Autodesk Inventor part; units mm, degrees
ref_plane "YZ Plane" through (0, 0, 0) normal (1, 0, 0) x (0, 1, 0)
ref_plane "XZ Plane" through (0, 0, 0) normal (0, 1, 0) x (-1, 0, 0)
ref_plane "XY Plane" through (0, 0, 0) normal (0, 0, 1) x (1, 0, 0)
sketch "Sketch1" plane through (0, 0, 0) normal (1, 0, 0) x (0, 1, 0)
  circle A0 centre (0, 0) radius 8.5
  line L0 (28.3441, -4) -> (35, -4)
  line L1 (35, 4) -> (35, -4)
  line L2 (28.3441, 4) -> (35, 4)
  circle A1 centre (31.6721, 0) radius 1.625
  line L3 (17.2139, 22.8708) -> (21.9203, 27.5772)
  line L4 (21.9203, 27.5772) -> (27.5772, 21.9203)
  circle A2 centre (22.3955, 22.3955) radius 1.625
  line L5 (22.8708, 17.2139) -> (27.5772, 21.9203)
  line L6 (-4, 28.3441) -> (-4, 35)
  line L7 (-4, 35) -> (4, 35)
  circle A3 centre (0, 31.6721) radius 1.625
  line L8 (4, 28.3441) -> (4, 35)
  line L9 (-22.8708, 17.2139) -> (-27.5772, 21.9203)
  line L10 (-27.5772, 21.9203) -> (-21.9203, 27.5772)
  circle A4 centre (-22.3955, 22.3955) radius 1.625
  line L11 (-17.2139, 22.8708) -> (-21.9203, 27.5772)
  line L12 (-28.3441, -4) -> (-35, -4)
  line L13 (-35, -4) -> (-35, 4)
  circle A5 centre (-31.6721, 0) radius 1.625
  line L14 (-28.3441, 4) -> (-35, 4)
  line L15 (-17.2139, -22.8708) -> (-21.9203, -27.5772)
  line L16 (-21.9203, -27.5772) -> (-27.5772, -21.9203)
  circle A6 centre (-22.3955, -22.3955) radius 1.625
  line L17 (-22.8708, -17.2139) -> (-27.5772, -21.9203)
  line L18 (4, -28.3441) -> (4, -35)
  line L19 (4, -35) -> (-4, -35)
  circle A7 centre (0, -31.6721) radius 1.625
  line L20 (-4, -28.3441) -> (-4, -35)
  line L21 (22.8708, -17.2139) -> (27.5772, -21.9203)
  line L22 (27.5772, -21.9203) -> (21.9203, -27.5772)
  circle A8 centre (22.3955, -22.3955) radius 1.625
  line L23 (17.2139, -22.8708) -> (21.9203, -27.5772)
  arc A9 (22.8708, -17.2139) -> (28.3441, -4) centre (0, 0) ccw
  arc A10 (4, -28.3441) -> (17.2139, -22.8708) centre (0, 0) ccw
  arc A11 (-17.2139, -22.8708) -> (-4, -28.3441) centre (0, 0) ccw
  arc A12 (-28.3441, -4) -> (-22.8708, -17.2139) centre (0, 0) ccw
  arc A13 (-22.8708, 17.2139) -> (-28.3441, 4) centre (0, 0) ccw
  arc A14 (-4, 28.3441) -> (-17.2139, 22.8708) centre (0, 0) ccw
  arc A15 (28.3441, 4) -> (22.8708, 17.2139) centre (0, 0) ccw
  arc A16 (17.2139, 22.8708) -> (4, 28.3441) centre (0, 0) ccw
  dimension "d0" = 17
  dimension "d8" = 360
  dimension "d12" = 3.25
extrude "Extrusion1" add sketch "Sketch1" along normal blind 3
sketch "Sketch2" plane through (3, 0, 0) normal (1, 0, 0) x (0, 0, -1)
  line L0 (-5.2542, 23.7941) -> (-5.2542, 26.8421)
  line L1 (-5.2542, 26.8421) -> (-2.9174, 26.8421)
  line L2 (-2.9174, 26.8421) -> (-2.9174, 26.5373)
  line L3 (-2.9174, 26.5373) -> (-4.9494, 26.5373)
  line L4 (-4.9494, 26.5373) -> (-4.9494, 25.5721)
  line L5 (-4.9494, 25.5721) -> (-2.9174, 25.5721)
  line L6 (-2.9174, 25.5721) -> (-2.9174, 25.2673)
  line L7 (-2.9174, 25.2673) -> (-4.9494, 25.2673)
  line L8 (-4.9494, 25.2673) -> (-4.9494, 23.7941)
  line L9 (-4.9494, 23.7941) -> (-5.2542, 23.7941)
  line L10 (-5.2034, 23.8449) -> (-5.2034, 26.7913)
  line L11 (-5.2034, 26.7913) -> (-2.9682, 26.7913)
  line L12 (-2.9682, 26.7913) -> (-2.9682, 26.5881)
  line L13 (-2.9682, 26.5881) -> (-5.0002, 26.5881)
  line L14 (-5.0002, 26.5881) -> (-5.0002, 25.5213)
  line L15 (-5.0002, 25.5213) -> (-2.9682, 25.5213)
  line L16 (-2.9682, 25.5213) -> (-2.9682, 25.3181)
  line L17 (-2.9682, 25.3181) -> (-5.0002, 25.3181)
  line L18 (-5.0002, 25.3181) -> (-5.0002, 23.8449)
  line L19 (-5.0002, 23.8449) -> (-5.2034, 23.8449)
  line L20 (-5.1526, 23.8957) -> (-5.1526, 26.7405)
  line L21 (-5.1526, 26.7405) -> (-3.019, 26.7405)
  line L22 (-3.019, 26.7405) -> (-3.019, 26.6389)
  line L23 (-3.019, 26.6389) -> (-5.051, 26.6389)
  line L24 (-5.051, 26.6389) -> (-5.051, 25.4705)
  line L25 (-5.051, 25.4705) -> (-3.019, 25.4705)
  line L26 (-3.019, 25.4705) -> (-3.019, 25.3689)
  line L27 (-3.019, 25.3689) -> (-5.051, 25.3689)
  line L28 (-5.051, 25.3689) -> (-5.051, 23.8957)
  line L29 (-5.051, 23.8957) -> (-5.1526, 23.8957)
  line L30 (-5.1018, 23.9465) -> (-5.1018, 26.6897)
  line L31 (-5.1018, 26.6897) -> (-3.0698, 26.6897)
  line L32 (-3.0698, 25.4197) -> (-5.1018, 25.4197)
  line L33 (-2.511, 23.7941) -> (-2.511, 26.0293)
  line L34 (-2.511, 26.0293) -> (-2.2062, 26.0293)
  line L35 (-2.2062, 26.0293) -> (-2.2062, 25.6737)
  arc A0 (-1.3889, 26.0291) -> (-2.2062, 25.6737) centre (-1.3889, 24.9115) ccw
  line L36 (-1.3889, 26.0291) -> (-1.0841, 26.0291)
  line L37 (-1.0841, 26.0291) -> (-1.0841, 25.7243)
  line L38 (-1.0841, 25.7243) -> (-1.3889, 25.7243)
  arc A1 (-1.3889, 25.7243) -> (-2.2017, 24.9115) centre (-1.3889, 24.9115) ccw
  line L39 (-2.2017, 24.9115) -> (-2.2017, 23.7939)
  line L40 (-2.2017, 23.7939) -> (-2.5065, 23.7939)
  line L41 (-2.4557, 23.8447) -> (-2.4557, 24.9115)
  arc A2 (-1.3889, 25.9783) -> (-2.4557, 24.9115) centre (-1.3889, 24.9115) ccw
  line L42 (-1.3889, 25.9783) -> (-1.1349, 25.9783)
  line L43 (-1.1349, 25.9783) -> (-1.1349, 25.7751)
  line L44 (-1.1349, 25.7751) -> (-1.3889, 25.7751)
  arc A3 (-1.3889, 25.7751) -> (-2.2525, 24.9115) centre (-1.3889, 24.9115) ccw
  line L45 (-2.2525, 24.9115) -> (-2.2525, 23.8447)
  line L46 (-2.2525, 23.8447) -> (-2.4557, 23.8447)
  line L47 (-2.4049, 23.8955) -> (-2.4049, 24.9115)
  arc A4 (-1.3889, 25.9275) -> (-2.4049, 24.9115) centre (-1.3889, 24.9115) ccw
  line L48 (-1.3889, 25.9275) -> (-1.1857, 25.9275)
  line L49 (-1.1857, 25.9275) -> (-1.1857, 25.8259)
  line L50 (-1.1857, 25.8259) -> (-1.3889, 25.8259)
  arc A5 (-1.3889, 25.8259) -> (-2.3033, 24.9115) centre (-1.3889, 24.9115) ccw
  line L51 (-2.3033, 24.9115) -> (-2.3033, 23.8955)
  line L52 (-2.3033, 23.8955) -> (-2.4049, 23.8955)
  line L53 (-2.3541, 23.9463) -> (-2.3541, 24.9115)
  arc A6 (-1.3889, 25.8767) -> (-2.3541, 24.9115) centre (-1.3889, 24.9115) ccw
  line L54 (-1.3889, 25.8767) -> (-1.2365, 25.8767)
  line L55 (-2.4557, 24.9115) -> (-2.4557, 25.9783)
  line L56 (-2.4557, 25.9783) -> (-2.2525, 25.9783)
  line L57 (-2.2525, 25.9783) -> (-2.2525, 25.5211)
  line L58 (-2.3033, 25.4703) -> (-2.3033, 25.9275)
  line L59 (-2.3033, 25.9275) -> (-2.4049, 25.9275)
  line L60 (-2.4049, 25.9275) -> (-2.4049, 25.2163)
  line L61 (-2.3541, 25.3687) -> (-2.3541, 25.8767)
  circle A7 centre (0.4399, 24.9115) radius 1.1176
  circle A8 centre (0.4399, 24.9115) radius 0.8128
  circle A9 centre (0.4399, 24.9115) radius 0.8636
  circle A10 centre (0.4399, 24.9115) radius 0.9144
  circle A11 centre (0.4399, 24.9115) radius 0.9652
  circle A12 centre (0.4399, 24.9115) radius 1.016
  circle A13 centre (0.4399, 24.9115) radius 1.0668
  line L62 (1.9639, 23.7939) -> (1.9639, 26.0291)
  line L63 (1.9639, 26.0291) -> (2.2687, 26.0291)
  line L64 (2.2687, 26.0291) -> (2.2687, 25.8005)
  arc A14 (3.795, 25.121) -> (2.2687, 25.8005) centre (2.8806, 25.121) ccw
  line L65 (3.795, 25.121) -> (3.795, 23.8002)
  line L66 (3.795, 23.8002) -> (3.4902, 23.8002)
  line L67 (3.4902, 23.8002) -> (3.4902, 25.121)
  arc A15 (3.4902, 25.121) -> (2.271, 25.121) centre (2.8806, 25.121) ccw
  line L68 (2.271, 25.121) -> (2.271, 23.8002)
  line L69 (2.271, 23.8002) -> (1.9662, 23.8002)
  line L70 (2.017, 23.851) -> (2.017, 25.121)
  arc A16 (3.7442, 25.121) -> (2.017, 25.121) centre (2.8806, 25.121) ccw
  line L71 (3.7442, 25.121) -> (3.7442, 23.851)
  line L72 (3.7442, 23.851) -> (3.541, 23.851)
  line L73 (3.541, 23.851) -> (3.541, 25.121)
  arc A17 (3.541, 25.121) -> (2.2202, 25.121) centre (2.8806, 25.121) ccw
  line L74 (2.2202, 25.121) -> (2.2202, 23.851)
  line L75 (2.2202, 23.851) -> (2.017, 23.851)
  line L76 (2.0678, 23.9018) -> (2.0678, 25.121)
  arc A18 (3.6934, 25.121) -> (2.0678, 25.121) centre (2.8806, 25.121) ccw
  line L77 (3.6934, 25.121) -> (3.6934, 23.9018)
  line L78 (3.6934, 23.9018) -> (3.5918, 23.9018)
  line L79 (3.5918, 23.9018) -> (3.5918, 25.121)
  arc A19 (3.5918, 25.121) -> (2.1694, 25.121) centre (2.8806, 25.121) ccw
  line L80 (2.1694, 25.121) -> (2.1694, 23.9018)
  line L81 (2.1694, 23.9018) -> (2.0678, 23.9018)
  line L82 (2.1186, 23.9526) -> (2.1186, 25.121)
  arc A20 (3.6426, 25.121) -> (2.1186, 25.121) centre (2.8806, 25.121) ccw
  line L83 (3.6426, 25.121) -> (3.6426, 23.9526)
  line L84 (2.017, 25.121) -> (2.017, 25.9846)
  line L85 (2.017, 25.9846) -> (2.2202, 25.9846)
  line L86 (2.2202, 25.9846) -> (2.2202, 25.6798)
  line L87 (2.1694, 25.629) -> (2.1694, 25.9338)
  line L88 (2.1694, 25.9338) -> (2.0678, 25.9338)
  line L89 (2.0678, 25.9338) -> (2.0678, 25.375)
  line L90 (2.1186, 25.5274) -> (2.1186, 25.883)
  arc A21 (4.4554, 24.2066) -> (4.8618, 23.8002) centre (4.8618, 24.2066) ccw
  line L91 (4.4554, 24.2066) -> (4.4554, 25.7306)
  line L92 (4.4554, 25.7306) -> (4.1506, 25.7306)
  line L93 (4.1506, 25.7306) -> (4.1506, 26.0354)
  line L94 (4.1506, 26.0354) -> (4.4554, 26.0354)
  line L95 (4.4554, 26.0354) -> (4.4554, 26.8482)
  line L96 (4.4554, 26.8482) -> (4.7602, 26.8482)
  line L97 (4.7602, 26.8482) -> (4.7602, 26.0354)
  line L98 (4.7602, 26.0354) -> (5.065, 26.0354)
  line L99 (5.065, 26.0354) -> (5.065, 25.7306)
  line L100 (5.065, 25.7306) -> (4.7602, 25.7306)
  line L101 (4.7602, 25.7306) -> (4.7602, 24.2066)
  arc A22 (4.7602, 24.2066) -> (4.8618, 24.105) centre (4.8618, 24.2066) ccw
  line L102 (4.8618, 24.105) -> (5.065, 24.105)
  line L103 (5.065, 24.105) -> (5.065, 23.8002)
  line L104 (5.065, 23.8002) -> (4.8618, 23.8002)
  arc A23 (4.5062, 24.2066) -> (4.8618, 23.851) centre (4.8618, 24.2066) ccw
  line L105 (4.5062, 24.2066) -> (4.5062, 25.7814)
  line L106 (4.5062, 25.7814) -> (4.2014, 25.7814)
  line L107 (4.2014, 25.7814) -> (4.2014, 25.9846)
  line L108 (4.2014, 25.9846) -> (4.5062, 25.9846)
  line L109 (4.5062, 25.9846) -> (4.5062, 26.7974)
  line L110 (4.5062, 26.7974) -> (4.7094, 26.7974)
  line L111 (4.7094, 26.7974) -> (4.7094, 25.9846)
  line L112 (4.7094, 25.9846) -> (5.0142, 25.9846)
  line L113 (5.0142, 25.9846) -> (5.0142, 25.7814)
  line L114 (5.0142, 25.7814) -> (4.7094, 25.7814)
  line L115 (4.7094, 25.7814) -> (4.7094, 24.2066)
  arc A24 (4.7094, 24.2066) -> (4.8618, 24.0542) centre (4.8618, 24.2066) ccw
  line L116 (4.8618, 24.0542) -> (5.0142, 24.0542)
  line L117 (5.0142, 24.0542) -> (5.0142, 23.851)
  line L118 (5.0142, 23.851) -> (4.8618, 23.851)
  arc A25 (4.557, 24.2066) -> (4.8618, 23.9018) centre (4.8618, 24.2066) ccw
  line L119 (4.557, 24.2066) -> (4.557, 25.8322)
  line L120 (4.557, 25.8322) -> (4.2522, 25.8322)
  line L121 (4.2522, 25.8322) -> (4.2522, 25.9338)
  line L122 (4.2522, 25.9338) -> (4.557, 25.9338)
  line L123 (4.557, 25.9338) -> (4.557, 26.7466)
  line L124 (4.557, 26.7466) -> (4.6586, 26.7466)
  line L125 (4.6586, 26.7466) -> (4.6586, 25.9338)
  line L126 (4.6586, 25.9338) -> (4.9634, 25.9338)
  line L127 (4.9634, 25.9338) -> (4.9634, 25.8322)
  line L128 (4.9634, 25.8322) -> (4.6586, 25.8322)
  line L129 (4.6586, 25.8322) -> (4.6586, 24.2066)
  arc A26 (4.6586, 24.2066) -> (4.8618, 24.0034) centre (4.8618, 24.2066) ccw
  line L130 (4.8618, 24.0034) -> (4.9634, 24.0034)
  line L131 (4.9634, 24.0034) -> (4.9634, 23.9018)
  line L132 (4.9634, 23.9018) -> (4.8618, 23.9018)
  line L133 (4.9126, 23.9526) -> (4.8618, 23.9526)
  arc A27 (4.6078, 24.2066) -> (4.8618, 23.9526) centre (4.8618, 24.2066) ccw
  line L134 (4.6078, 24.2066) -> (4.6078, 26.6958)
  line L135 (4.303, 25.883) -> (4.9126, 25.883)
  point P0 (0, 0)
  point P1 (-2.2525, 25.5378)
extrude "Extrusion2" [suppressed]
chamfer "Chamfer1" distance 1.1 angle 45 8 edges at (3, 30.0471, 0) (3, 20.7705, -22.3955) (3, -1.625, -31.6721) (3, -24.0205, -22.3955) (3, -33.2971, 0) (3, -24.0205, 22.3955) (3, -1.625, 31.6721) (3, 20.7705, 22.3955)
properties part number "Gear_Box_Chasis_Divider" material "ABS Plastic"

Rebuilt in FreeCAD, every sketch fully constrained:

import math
import FreeCAD as App
import Part
import Sketcher
Q = App.Units.Quantity


def edges_at(feature, points):
    """Names of the edges that pass closest to the given points."""
    edges = feature.Shape.Edges
    near = lambda p: min(range(len(edges)), key=lambda i: edges[i].distToShape(Part.Vertex(*p))[0])
    return sorted({f"Edge{near(p) + 1}" for p in points})

doc = App.newDocument("Part")
params = doc.addObject("Spreadsheet::Sheet", "Params")
for row, (alias, value) in enumerate([
    ("sketch1_diameter", "17 mm"),
    ("sketch1_diameter2", "3.25 mm"),
    ("sketch1_width", "8 mm"),
    ("sketch1_length", "8 mm"),
    ("pad1_length", "3 mm"),
    ("chamfer_size", "1.1 mm"),
], start=1):
    params.set(f"A{row}", alias)
    params.set(f"B{row}", "=" + value)
    params.setAlias(f"B{row}", alias)

body = doc.addObject("PartDesign::Body", "Body")

# Sketch on YZ plane
sketch1 = body.newObject("Sketcher::SketchObject", "Sketch")
sketch1.AttachmentSupport = (doc.getObject("YZ_Plane"), [""])
sketch1.MapMode = "FlatFace"
sketch1.addGeometry([
    Part.ArcOfCircle(Part.Circle(App.Vector(0.000926, -0.000529, 0), App.Vector(0, 0, 1), 28.623963), math.radians(-36.967524), math.radians(-8.031909)),  # 0
    Part.LineSegment(App.Vector(28.3441, -4, 0), App.Vector(35, -4, 0)),  # 1
    Part.LineSegment(App.Vector(35, -4, 0), App.Vector(35, 4, 0)),  # 2
    Part.LineSegment(App.Vector(35, 4, 0), App.Vector(28.3441, 4, 0)),  # 3
    Part.ArcOfCircle(Part.Circle(App.Vector(-0.001029, -0.000281, 0), App.Vector(0, 0, 1), 28.626012), math.radians(8.032967), math.radians(36.966466)),  # 4
    Part.LineSegment(App.Vector(22.8708, 17.2139, 0), App.Vector(27.5772, 21.9203, 0)),  # 5
    Part.LineSegment(App.Vector(27.5772, 21.9203, 0), App.Vector(21.9203, 27.5772, 0)),  # 6
    Part.LineSegment(App.Vector(21.9203, 27.5772, 0), App.Vector(17.2139, 22.8708, 0)),  # 7
    Part.ArcOfCircle(Part.Circle(App.Vector(0.000529, 0.000926, 0), App.Vector(0, 0, 1), 28.623963), math.radians(53.032476), math.radians(81.968091)),  # 8
    Part.LineSegment(App.Vector(4, 28.3441, 0), App.Vector(4, 35, 0)),  # 9
    Part.LineSegment(App.Vector(4, 35, 0), App.Vector(-4, 35, 0)),  # 10
    Part.LineSegment(App.Vector(-4, 35, 0), App.Vector(-4, 28.3441, 0)),  # 11
    Part.ArcOfCircle(Part.Circle(App.Vector(0.000281, -0.001029, 0), App.Vector(0, 0, 1), 28.626012), math.radians(98.032967), math.radians(126.966466)),  # 12
    Part.LineSegment(App.Vector(-17.2139, 22.8708, 0), App.Vector(-21.9203, 27.5772, 0)),  # 13
    Part.LineSegment(App.Vector(-21.9203, 27.5772, 0), App.Vector(-27.5772, 21.9203, 0)),  # 14
    Part.LineSegment(App.Vector(-27.5772, 21.9203, 0), App.Vector(-22.8708, 17.2139, 0)),  # 15
    Part.ArcOfCircle(Part.Circle(App.Vector(-0.000926, 0.000529, 0), App.Vector(0, 0, 1), 28.623963), math.radians(143.032476), math.radians(171.968091)),  # 16
    Part.LineSegment(App.Vector(-28.3441, 4, 0), App.Vector(-35, 4, 0)),  # 17
    Part.LineSegment(App.Vector(-35, 4, 0), App.Vector(-35, -4, 0)),  # 18
    Part.LineSegment(App.Vector(-35, -4, 0), App.Vector(-28.3441, -4, 0)),  # 19
    Part.ArcOfCircle(Part.Circle(App.Vector(0.001029, 0.000281, 0), App.Vector(0, 0, 1), 28.626012), math.radians(-171.967033), math.radians(-143.033534)),  # 20
    Part.LineSegment(App.Vector(-22.8708, -17.2139, 0), App.Vector(-27.5772, -21.9203, 0)),  # 21
    Part.LineSegment(App.Vector(-27.5772, -21.9203, 0), App.Vector(-21.9203, -27.5772, 0)),  # 22
    Part.LineSegment(App.Vector(-21.9203, -27.5772, 0), App.Vector(-17.2139, -22.8708, 0)),  # 23
    Part.ArcOfCircle(Part.Circle(App.Vector(-0.000529, -0.000926, 0), App.Vector(0, 0, 1), 28.623963), math.radians(-126.967524), math.radians(-98.031909)),  # 24
    Part.LineSegment(App.Vector(-4, -28.3441, 0), App.Vector(-4, -35, 0)),  # 25
    Part.LineSegment(App.Vector(-4, -35, 0), App.Vector(4, -35, 0)),  # 26
    Part.LineSegment(App.Vector(4, -35, 0), App.Vector(4, -28.3441, 0)),  # 27
    Part.ArcOfCircle(Part.Circle(App.Vector(-0.000281, 0.001029, 0), App.Vector(0, 0, 1), 28.626012), math.radians(-81.967033), math.radians(-53.033534)),  # 28
    Part.LineSegment(App.Vector(17.2139, -22.8708, 0), App.Vector(21.9203, -27.5772, 0)),  # 29
    Part.LineSegment(App.Vector(21.9203, -27.5772, 0), App.Vector(27.5772, -21.9203, 0)),  # 30
    Part.LineSegment(App.Vector(27.5772, -21.9203, 0), App.Vector(22.8708, -17.2139, 0)),  # 31
    Part.Circle(App.Vector(-22.3955, -22.3955, 0), App.Vector(0, 0, 1), 1.625),  # 32
    Part.Circle(App.Vector(0, -31.6721, 0), App.Vector(0, 0, 1), 1.625),  # 33
    Part.Circle(App.Vector(22.3955, -22.3955, 0), App.Vector(0, 0, 1), 1.625),  # 34
    Part.Circle(App.Vector(-31.6721, 0, 0), App.Vector(0, 0, 1), 1.625),  # 35
    Part.Circle(App.Vector(-22.3955, 22.3955, 0), App.Vector(0, 0, 1), 1.625),  # 36
    Part.Circle(App.Vector(0, 0, 0), App.Vector(0, 0, 1), 8.5),  # 37
    Part.Circle(App.Vector(31.6721, 0, 0), App.Vector(0, 0, 1), 1.625),  # 38
    Part.Circle(App.Vector(0, 31.6721, 0), App.Vector(0, 0, 1), 1.625),  # 39
    Part.Circle(App.Vector(22.3955, 22.3955, 0), App.Vector(0, 0, 1), 1.625),  # 40
], False)
sketch1.addConstraint([
    Sketcher.Constraint("Coincident", 0, 2, 1, 1),
    Sketcher.Constraint("Coincident", 1, 2, 2, 1),
    Sketcher.Constraint("Coincident", 2, 2, 3, 1),
    Sketcher.Constraint("Coincident", 3, 2, 4, 1),
    Sketcher.Constraint("Coincident", 4, 2, 5, 1),
    Sketcher.Constraint("Coincident", 5, 2, 6, 1),
    Sketcher.Constraint("Coincident", 6, 2, 7, 1),
    Sketcher.Constraint("Coincident", 7, 2, 8, 1),
    Sketcher.Constraint("Coincident", 8, 2, 9, 1),
    Sketcher.Constraint("Coincident", 9, 2, 10, 1),
    Sketcher.Constraint("Coincident", 10, 2, 11, 1),
    Sketcher.Constraint("Coincident", 11, 2, 12, 1),
    Sketcher.Constraint("Coincident", 12, 2, 13, 1),
    Sketcher.Constraint("Coincident", 13, 2, 14, 1),
    Sketcher.Constraint("Coincident", 14, 2, 15, 1),
    Sketcher.Constraint("Coincident", 15, 2, 16, 1),
    Sketcher.Constraint("Coincident", 16, 2, 17, 1),
    Sketcher.Constraint("Coincident", 17, 2, 18, 1),
    Sketcher.Constraint("Coincident", 18, 2, 19, 1),
    Sketcher.Constraint("Coincident", 19, 2, 20, 1),
    Sketcher.Constraint("Coincident", 20, 2, 21, 1),
    Sketcher.Constraint("Coincident", 21, 2, 22, 1),
    Sketcher.Constraint("Coincident", 22, 2, 23, 1),
    Sketcher.Constraint("Coincident", 23, 2, 24, 1),
    Sketcher.Constraint("Coincident", 24, 2, 25, 1),
    Sketcher.Constraint("Coincident", 25, 2, 26, 1),
    Sketcher.Constraint("Coincident", 26, 2, 27, 1),
    Sketcher.Constraint("Coincident", 27, 2, 28, 1),
    Sketcher.Constraint("Coincident", 28, 2, 29, 1),
    Sketcher.Constraint("Coincident", 29, 2, 30, 1),
    Sketcher.Constraint("Coincident", 30, 2, 31, 1),
    Sketcher.Constraint("Coincident", 31, 2, 0, 1),
    Sketcher.Constraint("Horizontal", 1),
    Sketcher.Constraint("Vertical", 2),
    Sketcher.Constraint("Horizontal", 3),
    Sketcher.Constraint("Vertical", 9),
    Sketcher.Constraint("Horizontal", 10),
    Sketcher.Constraint("Vertical", 11),
    Sketcher.Constraint("Horizontal", 17),
    Sketcher.Constraint("Vertical", 18),
    Sketcher.Constraint("Horizontal", 19),
    Sketcher.Constraint("Vertical", 25),
    Sketcher.Constraint("Horizontal", 26),
    Sketcher.Constraint("Vertical", 27),
    Sketcher.Constraint("Coincident", 37, 3, -1, 1),
    Sketcher.Constraint("Equal", 0, 8),
    Sketcher.Constraint("Equal", 4, 12),
    Sketcher.Constraint("Equal", 8, 16),
    Sketcher.Constraint("Equal", 12, 20),
    Sketcher.Constraint("Equal", 16, 24),
    Sketcher.Constraint("Equal", 20, 28),
    Sketcher.Constraint("Equal", 32, 33),
    Sketcher.Constraint("Equal", 33, 34),
    Sketcher.Constraint("Equal", 34, 35),
    Sketcher.Constraint("Equal", 35, 36),
    Sketcher.Constraint("Equal", 36, 38),
    Sketcher.Constraint("Equal", 38, 39),
    Sketcher.Constraint("Equal", 39, 40),
    Sketcher.Constraint("Symmetric", 0, 3, 16, 3, -1, 1),
    Sketcher.Constraint("Symmetric", 4, 3, 20, 3, -1, 1),
    Sketcher.Constraint("Symmetric", 8, 3, 24, 3, -1, 1),
    Sketcher.Constraint("Symmetric", 12, 3, 28, 3, -1, 1),
    Sketcher.Constraint("Symmetric", 34, 3, 36, 3, -1, 1),
    Sketcher.Constraint("Symmetric", 35, 3, 38, 3, -1, 1),
    Sketcher.Constraint("Symmetric", 33, 3, 39, 3, -1, 1),
    Sketcher.Constraint("Symmetric", 32, 3, 40, 3, -1, 1),
    Sketcher.Constraint("Symmetric", 1, 2, 17, 2, -1, 1),
    Sketcher.Constraint("Symmetric", 5, 2, 21, 2, -1, 1),
    Sketcher.Constraint("Symmetric", 6, 2, 22, 2, -1, 1),
    Sketcher.Constraint("Symmetric", 9, 2, 25, 2, -1, 1),
    Sketcher.Constraint("Symmetric", 13, 2, 29, 2, -1, 1),
    Sketcher.Constraint("Symmetric", 14, 2, 30, 2, -1, 1),
    Sketcher.Constraint("Symmetric", 0, 3, 4, 3, -2),
    Sketcher.Constraint("Symmetric", 12, 3, 24, 3, -2),
    Sketcher.Constraint("Symmetric", 32, 3, 34, 3, -2),
    Sketcher.Constraint("Symmetric", 8, 2, 11, 2, -2),
    Sketcher.Constraint("Symmetric", 7, 2, 12, 2, -2),
    Sketcher.Constraint("Symmetric", 6, 2, 13, 2, -2),
    Sketcher.Constraint("Symmetric", 5, 2, 14, 2, -2),
    Sketcher.Constraint("Symmetric", 4, 2, 15, 2, -2),
    Sketcher.Constraint("Symmetric", 3, 2, 16, 2, -2),
    Sketcher.Constraint("PointOnObject", 33, 3, -2),
    Sketcher.Constraint("PointOnObject", 35, 3, -1),
    Sketcher.Constraint("Perpendicular", 5, 6),
    Sketcher.Constraint("Perpendicular", 6, 7),
    Sketcher.Constraint("Perpendicular", 7, 13),
    Sketcher.Constraint("Perpendicular", 15, 21),
    Sketcher.Constraint("Perpendicular", 22, 23),
    Sketcher.Constraint("Perpendicular", 23, 29),
    Sketcher.Constraint("Perpendicular", 30, 31),
    Sketcher.Constraint("Horizontal", 1, 2, 18, 2),
    Sketcher.Constraint("Horizontal", 24, 2, 27, 2),
    Sketcher.Constraint("Equal", 26, 2),
    Sketcher.Constraint("Equal", 19, 9),
    Sketcher.Constraint("Equal", 5, 7),
    Sketcher.Constraint("Diameter", 37, Q("17 mm")),
    Sketcher.Constraint("Diameter", 32, Q("3.25 mm")),
    Sketcher.Constraint("DistanceX", 10, 2, 10, 1, Q("8 mm")),
    Sketcher.Constraint("Distance", 6, Q("8 mm")),
    Sketcher.Constraint("DistanceX", -1, 1, 1, 2, Q("35 mm")),
    Sketcher.Constraint("Radius", 0, Q("28.624 mm")),
    Sketcher.Constraint("Radius", 4, Q("28.626 mm")),
    Sketcher.Constraint("DistanceY", 33, 3, -1, 1, Q("31.672 mm")),
    Sketcher.Constraint("DistanceX", 35, 3, -1, 1, Q("31.672 mm")),
    Sketcher.Constraint("DistanceX", 32, 3, 24, 3, Q("22.395 mm")),
    Sketcher.Constraint("DistanceY", 32, 3, 16, 3, Q("22.396 mm")),
    Sketcher.Constraint("DistanceX", 5, 2, 3, 2, Q("0.767 mm")),
])
sketch1.setExpression("Constraints[95]", "Params.sketch1_diameter")
sketch1.setExpression("Constraints[96]", "Params.sketch1_diameter2")
sketch1.setExpression("Constraints[97]", "Params.sketch1_width")
sketch1.setExpression("Constraints[98]", "Params.sketch1_length")
pad1 = body.newObject("PartDesign::Pad", "Pad")
pad1.Profile = sketch1
pad1.setExpression("Length", "Params.pad1_length")
doc.recompute()

chamfer = body.newObject("PartDesign::Chamfer", "Chamfer")
chamfer.Base = (pad1, edges_at(pad1, [
    (3, 30.047, 0),
    (3, 20.77, -22.395),
    (3, -1.625, -31.672),
    (3, -24.02, -22.395),
    (3, -33.297, 0),
    (3, -24.02, 22.395),
    (3, -1.625, 31.672),
    (3, 20.77, 22.395),
]))
chamfer.setExpression("Size", "Params.chamfer_size")

doc.recompute()
